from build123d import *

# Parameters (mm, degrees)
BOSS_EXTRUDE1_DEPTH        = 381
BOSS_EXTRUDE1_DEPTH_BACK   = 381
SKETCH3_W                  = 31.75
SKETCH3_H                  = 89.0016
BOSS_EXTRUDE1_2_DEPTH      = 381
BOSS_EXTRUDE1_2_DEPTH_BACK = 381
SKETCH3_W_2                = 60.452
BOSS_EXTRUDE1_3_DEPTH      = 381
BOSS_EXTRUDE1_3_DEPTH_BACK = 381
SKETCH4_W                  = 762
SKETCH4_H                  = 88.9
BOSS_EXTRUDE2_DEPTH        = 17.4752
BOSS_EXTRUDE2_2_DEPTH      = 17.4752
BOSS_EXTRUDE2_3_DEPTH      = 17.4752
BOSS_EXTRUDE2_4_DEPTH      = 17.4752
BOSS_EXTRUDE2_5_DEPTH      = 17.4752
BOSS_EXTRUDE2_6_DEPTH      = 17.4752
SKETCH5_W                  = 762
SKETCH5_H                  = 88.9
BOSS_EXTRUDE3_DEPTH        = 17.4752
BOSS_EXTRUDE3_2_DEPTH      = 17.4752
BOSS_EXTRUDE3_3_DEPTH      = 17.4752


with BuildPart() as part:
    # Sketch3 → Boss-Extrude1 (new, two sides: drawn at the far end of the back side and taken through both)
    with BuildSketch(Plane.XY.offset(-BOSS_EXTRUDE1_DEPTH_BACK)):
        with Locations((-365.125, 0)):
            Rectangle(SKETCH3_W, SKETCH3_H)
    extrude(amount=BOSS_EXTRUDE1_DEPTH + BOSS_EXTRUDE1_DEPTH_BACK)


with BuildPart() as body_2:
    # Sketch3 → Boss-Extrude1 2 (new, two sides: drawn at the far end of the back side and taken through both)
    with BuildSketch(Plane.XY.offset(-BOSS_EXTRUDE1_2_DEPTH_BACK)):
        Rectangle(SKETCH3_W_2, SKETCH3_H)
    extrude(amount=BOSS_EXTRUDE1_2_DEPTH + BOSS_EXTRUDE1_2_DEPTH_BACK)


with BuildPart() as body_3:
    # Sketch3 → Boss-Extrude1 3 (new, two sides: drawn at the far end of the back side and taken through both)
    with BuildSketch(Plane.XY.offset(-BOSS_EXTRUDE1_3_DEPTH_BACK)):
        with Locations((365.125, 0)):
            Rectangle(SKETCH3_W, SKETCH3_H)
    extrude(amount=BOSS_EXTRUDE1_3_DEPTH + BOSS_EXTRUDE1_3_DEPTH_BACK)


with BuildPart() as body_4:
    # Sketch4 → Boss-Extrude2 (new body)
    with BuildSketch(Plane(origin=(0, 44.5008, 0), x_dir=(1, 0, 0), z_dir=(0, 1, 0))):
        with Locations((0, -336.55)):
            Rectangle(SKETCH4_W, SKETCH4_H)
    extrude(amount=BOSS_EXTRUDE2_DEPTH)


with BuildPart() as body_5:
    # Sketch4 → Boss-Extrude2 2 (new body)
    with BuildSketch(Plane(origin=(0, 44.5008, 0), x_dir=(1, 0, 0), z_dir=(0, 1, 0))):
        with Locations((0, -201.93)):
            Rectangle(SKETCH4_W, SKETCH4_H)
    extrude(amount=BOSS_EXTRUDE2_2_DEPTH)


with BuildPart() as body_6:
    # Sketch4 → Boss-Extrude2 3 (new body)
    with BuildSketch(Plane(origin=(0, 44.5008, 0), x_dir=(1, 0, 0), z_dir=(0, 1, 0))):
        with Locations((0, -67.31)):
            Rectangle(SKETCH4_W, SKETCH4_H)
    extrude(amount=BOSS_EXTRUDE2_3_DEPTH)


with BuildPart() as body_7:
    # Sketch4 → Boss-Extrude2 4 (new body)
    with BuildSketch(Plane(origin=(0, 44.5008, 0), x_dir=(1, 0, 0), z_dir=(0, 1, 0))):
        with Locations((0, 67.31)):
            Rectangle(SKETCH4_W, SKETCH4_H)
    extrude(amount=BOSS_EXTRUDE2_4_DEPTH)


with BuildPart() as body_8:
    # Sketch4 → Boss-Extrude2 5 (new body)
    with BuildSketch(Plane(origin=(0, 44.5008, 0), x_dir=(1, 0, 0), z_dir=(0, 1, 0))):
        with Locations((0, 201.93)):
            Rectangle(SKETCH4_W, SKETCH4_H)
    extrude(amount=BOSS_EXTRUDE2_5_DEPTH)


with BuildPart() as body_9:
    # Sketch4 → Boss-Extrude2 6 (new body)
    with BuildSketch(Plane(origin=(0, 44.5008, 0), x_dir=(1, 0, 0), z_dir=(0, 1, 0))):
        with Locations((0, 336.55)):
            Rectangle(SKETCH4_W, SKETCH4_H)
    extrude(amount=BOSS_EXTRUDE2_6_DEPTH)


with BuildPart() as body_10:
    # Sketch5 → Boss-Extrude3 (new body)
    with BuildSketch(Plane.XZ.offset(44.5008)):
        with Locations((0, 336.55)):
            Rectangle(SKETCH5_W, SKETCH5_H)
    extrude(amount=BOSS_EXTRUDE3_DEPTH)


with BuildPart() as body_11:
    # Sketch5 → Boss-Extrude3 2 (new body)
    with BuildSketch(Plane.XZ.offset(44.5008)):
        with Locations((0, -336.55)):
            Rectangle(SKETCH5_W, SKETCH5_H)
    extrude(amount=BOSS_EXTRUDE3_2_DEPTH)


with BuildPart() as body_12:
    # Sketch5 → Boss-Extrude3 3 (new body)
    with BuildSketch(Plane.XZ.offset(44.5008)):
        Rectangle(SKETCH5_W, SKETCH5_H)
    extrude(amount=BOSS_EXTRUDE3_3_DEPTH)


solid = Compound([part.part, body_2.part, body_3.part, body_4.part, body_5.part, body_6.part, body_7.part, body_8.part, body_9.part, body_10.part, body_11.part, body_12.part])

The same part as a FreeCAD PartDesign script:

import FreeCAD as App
import Part
import Sketcher
from FreeCAD import Vector
Q = App.Units.Quantity

doc = App.newDocument("Part")
params = doc.addObject("Spreadsheet::Sheet", "Params")
for row, (alias, value) in enumerate([
    ("sketch1_width", "1.25 in"),
    ("sketch1_height", "3.504 in"),
    ("pad1_length", "15 in"),
    ("pad1_length2", "15 in"),
    ("sketch2_width", "2.38 in"),
    ("sketch2_height", "3.504 in"),
    ("pad2_length", "15 in"),
    ("pad2_length2", "15 in"),
    ("sketch3_width", "1.25 in"),
    ("sketch3_height", "3.504 in"),
    ("pad3_length", "15 in"),
    ("pad3_length2", "15 in"),
    ("sketch4_width", "30 in"),
    ("sketch4_height", "3.5 in"),
    ("pad4_length", "0.688 in"),
    ("sketch5_width", "30 in"),
    ("sketch5_height", "3.5 in"),
    ("pad5_length", "0.688 in"),
    ("sketch6_width", "30 in"),
    ("sketch6_height", "3.5 in"),
    ("pad6_length", "0.688 in"),
    ("sketch7_width", "30 in"),
    ("sketch7_height", "3.5 in"),
    ("pad7_length", "0.688 in"),
    ("sketch8_width", "30 in"),
    ("sketch8_height", "3.5 in"),
    ("pad8_length", "0.688 in"),
    ("sketch9_width", "30 in"),
    ("sketch9_height", "3.5 in"),
    ("pad9_length", "0.688 in"),
    ("sketch10_width", "30 in"),
    ("sketch10_height", "3.5 in"),
    ("pad10_length", "0.688 in"),
    ("sketch11_width", "30 in"),
    ("sketch11_height", "3.5 in"),
    ("pad11_length", "0.688 in"),
    ("sketch12_width", "30 in"),
    ("sketch12_height", "3.5 in"),
    ("pad12_length", "0.688 in"),
], start=1):
    params.set(f"A{row}", alias)
    params.set(f"B{row}", "=" + value)
    params.setAlias(f"B{row}", alias)

body = doc.addObject("PartDesign::Body", "Body")

# Sketch on XY plane
sketch1 = body.newObject("Sketcher::SketchObject", "Sketch")
sketch1.AttachmentSupport = (doc.getObject("XY_Plane"), [""])
sketch1.MapMode = "FlatFace"
sketch1.addGeometry(Part.LineSegment(Vector(-381, 45, 0), Vector(-381, -45, 0)), False)
sketch1.addGeometry(Part.LineSegment(Vector(-381, -45, 0), Vector(-349, -45, 0)), False)
sketch1.addGeometry(Part.LineSegment(Vector(-349, -45, 0), Vector(-349, 45, 0)), False)
sketch1.addGeometry(Part.LineSegment(Vector(-349, 45, 0), Vector(-381, 45, 0)), False)
sketch1.addConstraint(Sketcher.Constraint("Coincident", 0, 2, 1, 1))
sketch1.addConstraint(Sketcher.Constraint("Coincident", 1, 2, 2, 1))
sketch1.addConstraint(Sketcher.Constraint("Coincident", 2, 2, 3, 1))
sketch1.addConstraint(Sketcher.Constraint("Coincident", 3, 2, 0, 1))
sketch1.addConstraint(Sketcher.Constraint("Vertical", 0))
sketch1.addConstraint(Sketcher.Constraint("Horizontal", 1))
sketch1.addConstraint(Sketcher.Constraint("Vertical", 2))
sketch1.addConstraint(Sketcher.Constraint("Horizontal", 3))
sketch1.addConstraint(Sketcher.Constraint("DistanceX", 0, 2, -1, 1, Q("15 in")))
sketch1.addConstraint(Sketcher.Constraint("DistanceX", 1, 1, 1, 2, Q("1.25 in")))
sketch1.addConstraint(Sketcher.Constraint("DistanceY", 0, 2, 0, 1, Q("3.504 in")))
sketch1.addConstraint(Sketcher.Constraint("DistanceY", 0, 2, -1, 1, Q("1.752 in")))
sketch1.setExpression("Constraints[9]", "Params.sketch1_width")
sketch1.setExpression("Constraints[10]", "Params.sketch1_height")
pad1 = body.newObject("PartDesign::Pad", "Pad")
pad1.Profile = sketch1
pad1.Type = "TwoLengths"
pad1.setExpression("Length", "Params.pad1_length")
pad1.setExpression("Length2", "Params.pad1_length2")
body2 = doc.addObject("PartDesign::Body", "Body001")

# Sketch on XY plane
sketch2 = body2.newObject("Sketcher::SketchObject", "Sketch001")
sketch2.AttachmentSupport = (doc.getObject("XY_Plane001"), [""])
sketch2.MapMode = "FlatFace"
sketch2.addGeometry(Part.LineSegment(Vector(-30, 45, 0), Vector(-30, -45, 0)), False)
sketch2.addGeometry(Part.LineSegment(Vector(-30, -45, 0), Vector(30, -45, 0)), False)
sketch2.addGeometry(Part.LineSegment(Vector(30, -45, 0), Vector(30, 45, 0)), False)
sketch2.addGeometry(Part.LineSegment(Vector(30, 45, 0), Vector(-30, 45, 0)), False)
sketch2.addConstraint(Sketcher.Constraint("Coincident", 0, 2, 1, 1))
sketch2.addConstraint(Sketcher.Constraint("Coincident", 1, 2, 2, 1))
sketch2.addConstraint(Sketcher.Constraint("Coincident", 2, 2, 3, 1))
sketch2.addConstraint(Sketcher.Constraint("Coincident", 3, 2, 0, 1))
sketch2.addConstraint(Sketcher.Constraint("Vertical", 0))
sketch2.addConstraint(Sketcher.Constraint("Horizontal", 1))
sketch2.addConstraint(Sketcher.Constraint("Vertical", 2))
sketch2.addConstraint(Sketcher.Constraint("Horizontal", 3))
sketch2.addConstraint(Sketcher.Constraint("Symmetric", 0, 2, 2, 2, -1, 1))
sketch2.addConstraint(Sketcher.Constraint("DistanceX", 1, 1, 1, 2, Q("2.38 in")))
sketch2.addConstraint(Sketcher.Constraint("DistanceY", 0, 2, 0, 1, Q("3.504 in")))
sketch2.setExpression("Constraints[9]", "Params.sketch2_width")
sketch2.setExpression("Constraints[10]", "Params.sketch2_height")
pad2 = body2.newObject("PartDesign::Pad", "Pad001")
pad2.Profile = sketch2
pad2.Type = "TwoLengths"
pad2.setExpression("Length", "Params.pad2_length")
pad2.setExpression("Length2", "Params.pad2_length2")
body3 = doc.addObject("PartDesign::Body", "Body002")

# Sketch on XY plane
sketch3 = body3.newObject("Sketcher::SketchObject", "Sketch002")
sketch3.AttachmentSupport = (doc.getObject("XY_Plane002"), [""])
sketch3.MapMode = "FlatFace"
sketch3.addGeometry(Part.LineSegment(Vector(349, 45, 0), Vector(349, -45, 0)), False)
sketch3.addGeometry(Part.LineSegment(Vector(349, -45, 0), Vector(381, -45, 0)), False)
sketch3.addGeometry(Part.LineSegment(Vector(381, -45, 0), Vector(381, 45, 0)), False)
sketch3.addGeometry(Part.LineSegment(Vector(381, 45, 0), Vector(349, 45, 0)), False)
sketch3.addConstraint(Sketcher.Constraint("Coincident", 0, 2, 1, 1))
sketch3.addConstraint(Sketcher.Constraint("Coincident", 1, 2, 2, 1))
sketch3.addConstraint(Sketcher.Constraint("Coincident", 2, 2, 3, 1))
sketch3.addConstraint(Sketcher.Constraint("Coincident", 3, 2, 0, 1))
sketch3.addConstraint(Sketcher.Constraint("Vertical", 0))
sketch3.addConstraint(Sketcher.Constraint("Horizontal", 1))
sketch3.addConstraint(Sketcher.Constraint("Vertical", 2))
sketch3.addConstraint(Sketcher.Constraint("Horizontal", 3))
sketch3.addConstraint(Sketcher.Constraint("DistanceX", -1, 1, 1, 2, Q("15 in")))
sketch3.addConstraint(Sketcher.Constraint("DistanceX", 1, 1, 1, 2, Q("1.25 in")))
sketch3.addConstraint(Sketcher.Constraint("DistanceY", 0, 2, 0, 1, Q("3.504 in")))
sketch3.addConstraint(Sketcher.Constraint("DistanceY", 0, 2, -1, 1, Q("1.752 in")))
sketch3.setExpression("Constraints[9]", "Params.sketch3_width")
sketch3.setExpression("Constraints[10]", "Params.sketch3_height")
pad3 = body3.newObject("PartDesign::Pad", "Pad002")
pad3.Profile = sketch3
pad3.Type = "TwoLengths"
pad3.setExpression("Length", "Params.pad3_length")
pad3.setExpression("Length2", "Params.pad3_length2")
body4 = doc.addObject("PartDesign::Body", "Body003")

# Sketch on XZ plane
sketch4 = body4.newObject("Sketcher::SketchObject", "Sketch003")
sketch4.AttachmentSupport = (doc.getObject("XZ_Plane003"), [""])
sketch4.MapMode = "FlatFace"
sketch4.AttachmentOffset = App.Placement(Vector(0, 0, -1.752 * 25.4), App.Rotation())
sketch4.addGeometry(Part.LineSegment(Vector(-381, 292, 0), Vector(-381, 381, 0)), False)
sketch4.addGeometry(Part.LineSegment(Vector(-381, 381, 0), Vector(381, 381, 0)), False)
sketch4.addGeometry(Part.LineSegment(Vector(381, 381, 0), Vector(381, 292, 0)), False)
sketch4.addGeometry(Part.LineSegment(Vector(381, 292, 0), Vector(-381, 292, 0)), False)
sketch4.addConstraint(Sketcher.Constraint("Coincident", 0, 2, 1, 1))
sketch4.addConstraint(Sketcher.Constraint("Coincident", 1, 2, 2, 1))
sketch4.addConstraint(Sketcher.Constraint("Coincident", 2, 2, 3, 1))
sketch4.addConstraint(Sketcher.Constraint("Coincident", 3, 2, 0, 1))
sketch4.addConstraint(Sketcher.Constraint("Vertical", 0))
sketch4.addConstraint(Sketcher.Constraint("Horizontal", 1))
sketch4.addConstraint(Sketcher.Constraint("Vertical", 2))
sketch4.addConstraint(Sketcher.Constraint("Horizontal", 3))
sketch4.addConstraint(Sketcher.Constraint("DistanceX", 1, 1, 1, 2, Q("30 in")))
sketch4.addConstraint(Sketcher.Constraint("DistanceY", 0, 1, 0, 2, Q("3.5 in")))
sketch4.addConstraint(Sketcher.Constraint("DistanceX", 0, 2, -1, 1, Q("15 in")))
sketch4.addConstraint(Sketcher.Constraint("DistanceY", -1, 1, 0, 2, Q("15 in")))
sketch4.setExpression("Constraints[8]", "Params.sketch4_width")
sketch4.setExpression("Constraints[9]", "Params.sketch4_height")
pad4 = body4.newObject("PartDesign::Pad", "Pad003")
pad4.Profile = sketch4
pad4.setExpression("Length", "Params.pad4_length")
pad4.Reversed = True
body5 = doc.addObject("PartDesign::Body", "Body004")

# Sketch on XZ plane
sketch5 = body5.newObject("Sketcher::SketchObject", "Sketch004")
sketch5.AttachmentSupport = (doc.getObject("XZ_Plane004"), [""])
sketch5.MapMode = "FlatFace"
sketch5.AttachmentOffset = App.Placement(Vector(0, 0, -1.752 * 25.4), App.Rotation())
sketch5.addGeometry(Part.LineSegment(Vector(-381, 157, 0), Vector(-381, 246, 0)), False)
sketch5.addGeometry(Part.LineSegment(Vector(-381, 246, 0), Vector(381, 246, 0)), False)
sketch5.addGeometry(Part.LineSegment(Vector(381, 246, 0), Vector(381, 157, 0)), False)
sketch5.addGeometry(Part.LineSegment(Vector(381, 157, 0), Vector(-381, 157, 0)), False)
sketch5.addConstraint(Sketcher.Constraint("Coincident", 0, 2, 1, 1))
sketch5.addConstraint(Sketcher.Constraint("Coincident", 1, 2, 2, 1))
sketch5.addConstraint(Sketcher.Constraint("Coincident", 2, 2, 3, 1))
sketch5.addConstraint(Sketcher.Constraint("Coincident", 3, 2, 0, 1))
sketch5.addConstraint(Sketcher.Constraint("Vertical", 0))
sketch5.addConstraint(Sketcher.Constraint("Horizontal", 1))
sketch5.addConstraint(Sketcher.Constraint("Vertical", 2))
sketch5.addConstraint(Sketcher.Constraint("Horizontal", 3))
sketch5.addConstraint(Sketcher.Constraint("DistanceX", 1, 1, 1, 2, Q("30 in")))
sketch5.addConstraint(Sketcher.Constraint("DistanceY", 0, 1, 0, 2, Q("3.5 in")))
sketch5.addConstraint(Sketcher.Constraint("DistanceX", 0, 2, -1, 1, Q("15 in")))
sketch5.addConstraint(Sketcher.Constraint("DistanceY", -1, 1, 0, 2, Q("9.7 in")))
sketch5.setExpression("Constraints[8]", "Params.sketch5_width")
sketch5.setExpression("Constraints[9]", "Params.sketch5_height")
pad5 = body5.newObject("PartDesign::Pad", "Pad004")
pad5.Profile = sketch5
pad5.setExpression("Length", "Params.pad5_length")
pad5.Reversed = True
body6 = doc.addObject("PartDesign::Body", "Body005")

# Sketch on XZ plane
sketch6 = body6.newObject("Sketcher::SketchObject", "Sketch005")
sketch6.AttachmentSupport = (doc.getObject("XZ_Plane005"), [""])
sketch6.MapMode = "FlatFace"
sketch6.AttachmentOffset = App.Placement(Vector(0, 0, -1.752 * 25.4), App.Rotation())
sketch6.addGeometry(Part.LineSegment(Vector(-381, 23, 0), Vector(-381, 112, 0)), False)
sketch6.addGeometry(Part.LineSegment(Vector(-381, 112, 0), Vector(381, 112, 0)), False)
sketch6.addGeometry(Part.LineSegment(Vector(381, 112, 0), Vector(381, 23, 0)), False)
sketch6.addGeometry(Part.LineSegment(Vector(381, 23, 0), Vector(-381, 23, 0)), False)
sketch6.addConstraint(Sketcher.Constraint("Coincident", 0, 2, 1, 1))
sketch6.addConstraint(Sketcher.Constraint("Coincident", 1, 2, 2, 1))
sketch6.addConstraint(Sketcher.Constraint("Coincident", 2, 2, 3, 1))
sketch6.addConstraint(Sketcher.Constraint("Coincident", 3, 2, 0, 1))
sketch6.addConstraint(Sketcher.Constraint("Vertical", 0))
sketch6.addConstraint(Sketcher.Constraint("Horizontal", 1))
sketch6.addConstraint(Sketcher.Constraint("Vertical", 2))
sketch6.addConstraint(Sketcher.Constraint("Horizontal", 3))
sketch6.addConstraint(Sketcher.Constraint("DistanceX", 1, 1, 1, 2, Q("30 in")))
sketch6.addConstraint(Sketcher.Constraint("DistanceY", 0, 1, 0, 2, Q("3.5 in")))
sketch6.addConstraint(Sketcher.Constraint("DistanceX", 0, 2, -1, 1, Q("15 in")))
sketch6.addConstraint(Sketcher.Constraint("DistanceY", -1, 1, 0, 2, Q("4.4 in")))
sketch6.setExpression("Constraints[8]", "Params.sketch6_width")
sketch6.setExpression("Constraints[9]", "Params.sketch6_height")
pad6 = body6.newObject("PartDesign::Pad", "Pad005")
pad6.Profile = sketch6
pad6.setExpression("Length", "Params.pad6_length")
pad6.Reversed = True
body7 = doc.addObject("PartDesign::Body", "Body006")

# Sketch on XZ plane
sketch7 = body7.newObject("Sketcher::SketchObject", "Sketch006")
sketch7.AttachmentSupport = (doc.getObject("XZ_Plane006"), [""])
sketch7.MapMode = "FlatFace"
sketch7.AttachmentOffset = App.Placement(Vector(0, 0, -1.752 * 25.4), App.Rotation())
sketch7.addGeometry(Part.LineSegment(Vector(-381, -112, 0), Vector(-381, -23, 0)), False)
sketch7.addGeometry(Part.LineSegment(Vector(-381, -23, 0), Vector(381, -23, 0)), False)
sketch7.addGeometry(Part.LineSegment(Vector(381, -23, 0), Vector(381, -112, 0)), False)
sketch7.addGeometry(Part.LineSegment(Vector(381, -112, 0), Vector(-381, -112, 0)), False)
sketch7.addConstraint(Sketcher.Constraint("Coincident", 0, 2, 1, 1))
sketch7.addConstraint(Sketcher.Constraint("Coincident", 1, 2, 2, 1))
sketch7.addConstraint(Sketcher.Constraint("Coincident", 2, 2, 3, 1))
sketch7.addConstraint(Sketcher.Constraint("Coincident", 3, 2, 0, 1))
sketch7.addConstraint(Sketcher.Constraint("Vertical", 0))
sketch7.addConstraint(Sketcher.Constraint("Horizontal", 1))
sketch7.addConstraint(Sketcher.Constraint("Vertical", 2))
sketch7.addConstraint(Sketcher.Constraint("Horizontal", 3))
sketch7.addConstraint(Sketcher.Constraint("DistanceX", 1, 1, 1, 2, Q("30 in")))
sketch7.addConstraint(Sketcher.Constraint("DistanceY", 0, 1, 0, 2, Q("3.5 in")))
sketch7.addConstraint(Sketcher.Constraint("DistanceX", 0, 2, -1, 1, Q("15 in")))
sketch7.addConstraint(Sketcher.Constraint("DistanceY", 0, 2, -1, 1, Q("0.9 in")))
sketch7.setExpression("Constraints[8]", "Params.sketch7_width")
sketch7.setExpression("Constraints[9]", "Params.sketch7_height")
pad7 = body7.newObject("PartDesign::Pad", "Pad006")
pad7.Profile = sketch7
pad7.setExpression("Length", "Params.pad7_length")
pad7.Reversed = True
body8 = doc.addObject("PartDesign::Body", "Body007")

# Sketch on XZ plane
sketch8 = body8.newObject("Sketcher::SketchObject", "Sketch007")
sketch8.AttachmentSupport = (doc.getObject("XZ_Plane007"), [""])
sketch8.MapMode = "FlatFace"
sketch8.AttachmentOffset = App.Placement(Vector(0, 0, -1.752 * 25.4), App.Rotation())
sketch8.addGeometry(Part.LineSegment(Vector(-381, -246, 0), Vector(-381, -157, 0)), False)
sketch8.addGeometry(Part.LineSegment(Vector(-381, -157, 0), Vector(381, -157, 0)), False)
sketch8.addGeometry(Part.LineSegment(Vector(381, -157, 0), Vector(381, -246, 0)), False)
sketch8.addGeometry(Part.LineSegment(Vector(381, -246, 0), Vector(-381, -246, 0)), False)
sketch8.addConstraint(Sketcher.Constraint("Coincident", 0, 2, 1, 1))
sketch8.addConstraint(Sketcher.Constraint("Coincident", 1, 2, 2, 1))
sketch8.addConstraint(Sketcher.Constraint("Coincident", 2, 2, 3, 1))
sketch8.addConstraint(Sketcher.Constraint("Coincident", 3, 2, 0, 1))
sketch8.addConstraint(Sketcher.Constraint("Vertical", 0))
sketch8.addConstraint(Sketcher.Constraint("Horizontal", 1))
sketch8.addConstraint(Sketcher.Constraint("Vertical", 2))
sketch8.addConstraint(Sketcher.Constraint("Horizontal", 3))
sketch8.addConstraint(Sketcher.Constraint("DistanceX", 1, 1, 1, 2, Q("30 in")))
sketch8.addConstraint(Sketcher.Constraint("DistanceY", 0, 1, 0, 2, Q("3.5 in")))
sketch8.addConstraint(Sketcher.Constraint("DistanceX", 0, 2, -1, 1, Q("15 in")))
sketch8.addConstraint(Sketcher.Constraint("DistanceY", 0, 2, -1, 1, Q("6.2 in")))
sketch8.setExpression("Constraints[8]", "Params.sketch8_width")
sketch8.setExpression("Constraints[9]", "Params.sketch8_height")
pad8 = body8.newObject("PartDesign::Pad", "Pad007")
pad8.Profile = sketch8
pad8.setExpression("Length", "Params.pad8_length")
pad8.Reversed = True
body9 = doc.addObject("PartDesign::Body", "Body008")

# Sketch on XZ plane
sketch9 = body9.newObject("Sketcher::SketchObject", "Sketch008")
sketch9.AttachmentSupport = (doc.getObject("XZ_Plane008"), [""])
sketch9.MapMode = "FlatFace"
sketch9.AttachmentOffset = App.Placement(Vector(0, 0, -1.752 * 25.4), App.Rotation())
sketch9.addGeometry(Part.LineSegment(Vector(-381, -381, 0), Vector(-381, -292, 0)), False)
sketch9.addGeometry(Part.LineSegment(Vector(-381, -292, 0), Vector(381, -292, 0)), False)
sketch9.addGeometry(Part.LineSegment(Vector(381, -292, 0), Vector(381, -381, 0)), False)
sketch9.addGeometry(Part.LineSegment(Vector(381, -381, 0), Vector(-381, -381, 0)), False)
sketch9.addConstraint(Sketcher.Constraint("Coincident", 0, 2, 1, 1))
sketch9.addConstraint(Sketcher.Constraint("Coincident", 1, 2, 2, 1))
sketch9.addConstraint(Sketcher.Constraint("Coincident", 2, 2, 3, 1))
sketch9.addConstraint(Sketcher.Constraint("Coincident", 3, 2, 0, 1))
sketch9.addConstraint(Sketcher.Constraint("Vertical", 0))
sketch9.addConstraint(Sketcher.Constraint("Horizontal", 1))
sketch9.addConstraint(Sketcher.Constraint("Vertical", 2))
sketch9.addConstraint(Sketcher.Constraint("Horizontal", 3))
sketch9.addConstraint(Sketcher.Constraint("DistanceX", 1, 1, 1, 2, Q("30 in")))
sketch9.addConstraint(Sketcher.Constraint("DistanceY", 0, 1, 0, 2, Q("3.5 in")))
sketch9.addConstraint(Sketcher.Constraint("DistanceX", 0, 2, -1, 1, Q("15 in")))
sketch9.addConstraint(Sketcher.Constraint("DistanceY", 2, 2, -1, 1, Q("15 in")))
sketch9.setExpression("Constraints[8]", "Params.sketch9_width")
sketch9.setExpression("Constraints[9]", "Params.sketch9_height")
pad9 = body9.newObject("PartDesign::Pad", "Pad008")
pad9.Profile = sketch9
pad9.setExpression("Length", "Params.pad9_length")
pad9.Reversed = True
body10 = doc.addObject("PartDesign::Body", "Body009")

# Sketch on XZ plane
sketch10 = body10.newObject("Sketcher::SketchObject", "Sketch009")
sketch10.AttachmentSupport = (doc.getObject("XZ_Plane009"), [""])
sketch10.MapMode = "FlatFace"
sketch10.AttachmentOffset = App.Placement(Vector(0, 0, 1.752 * 25.4), App.Rotation())
sketch10.addGeometry(Part.LineSegment(Vector(-381, 381, 0), Vector(-381, 292, 0)), False)
sketch10.addGeometry(Part.LineSegment(Vector(-381, 292, 0), Vector(381, 292, 0)), False)
sketch10.addGeometry(Part.LineSegment(Vector(381, 292, 0), Vector(381, 381, 0)), False)
sketch10.addGeometry(Part.LineSegment(Vector(381, 381, 0), Vector(-381, 381, 0)), False)
sketch10.addConstraint(Sketcher.Constraint("Coincident", 0, 2, 1, 1))
sketch10.addConstraint(Sketcher.Constraint("Coincident", 1, 2, 2, 1))
sketch10.addConstraint(Sketcher.Constraint("Coincident", 2, 2, 3, 1))
sketch10.addConstraint(Sketcher.Constraint("Coincident", 3, 2, 0, 1))
sketch10.addConstraint(Sketcher.Constraint("Vertical", 0))
sketch10.addConstraint(Sketcher.Constraint("Horizontal", 1))
sketch10.addConstraint(Sketcher.Constraint("Vertical", 2))
sketch10.addConstraint(Sketcher.Constraint("Horizontal", 3))
sketch10.addConstraint(Sketcher.Constraint("DistanceX", 1, 1, 1, 2, Q("30 in")))
sketch10.addConstraint(Sketcher.Constraint("DistanceY", 0, 2, 0, 1, Q("3.5 in")))
sketch10.addConstraint(Sketcher.Constraint("DistanceX", 0, 2, -1, 1, Q("15 in")))
sketch10.addConstraint(Sketcher.Constraint("DistanceY", -1, 1, 2, 2, Q("15 in")))
sketch10.setExpression("Constraints[8]", "Params.sketch10_width")
sketch10.setExpression("Constraints[9]", "Params.sketch10_height")
pad10 = body10.newObject("PartDesign::Pad", "Pad009")
pad10.Profile = sketch10
pad10.setExpression("Length", "Params.pad10_length")
body11 = doc.addObject("PartDesign::Body", "Body010")

# Sketch on XZ plane
sketch11 = body11.newObject("Sketcher::SketchObject", "Sketch010")
sketch11.AttachmentSupport = (doc.getObject("XZ_Plane010"), [""])
sketch11.MapMode = "FlatFace"
sketch11.AttachmentOffset = App.Placement(Vector(0, 0, 1.752 * 25.4), App.Rotation())
sketch11.addGeometry(Part.LineSegment(Vector(-381, -292, 0), Vector(-381, -381, 0)), False)
sketch11.addGeometry(Part.LineSegment(Vector(-381, -381, 0), Vector(381, -381, 0)), False)
sketch11.addGeometry(Part.LineSegment(Vector(381, -381, 0), Vector(381, -292, 0)), False)
sketch11.addGeometry(Part.LineSegment(Vector(381, -292, 0), Vector(-381, -292, 0)), False)
sketch11.addConstraint(Sketcher.Constraint("Coincident", 0, 2, 1, 1))
sketch11.addConstraint(Sketcher.Constraint("Coincident", 1, 2, 2, 1))
sketch11.addConstraint(Sketcher.Constraint("Coincident", 2, 2, 3, 1))
sketch11.addConstraint(Sketcher.Constraint("Coincident", 3, 2, 0, 1))
sketch11.addConstraint(Sketcher.Constraint("Vertical", 0))
sketch11.addConstraint(Sketcher.Constraint("Horizontal", 1))
sketch11.addConstraint(Sketcher.Constraint("Vertical", 2))
sketch11.addConstraint(Sketcher.Constraint("Horizontal", 3))
sketch11.addConstraint(Sketcher.Constraint("DistanceX", 1, 1, 1, 2, Q("30 in")))
sketch11.addConstraint(Sketcher.Constraint("DistanceY", 0, 2, 0, 1, Q("3.5 in")))
sketch11.addConstraint(Sketcher.Constraint("DistanceX", 0, 2, -1, 1, Q("15 in")))
sketch11.addConstraint(Sketcher.Constraint("DistanceY", 0, 2, -1, 1, Q("15 in")))
sketch11.setExpression("Constraints[8]", "Params.sketch11_width")
sketch11.setExpression("Constraints[9]", "Params.sketch11_height")
pad11 = body11.newObject("PartDesign::Pad", "Pad010")
pad11.Profile = sketch11
pad11.setExpression("Length", "Params.pad11_length")
body12 = doc.addObject("PartDesign::Body", "Body011")

# Sketch on XZ plane
sketch12 = body12.newObject("Sketcher::SketchObject", "Sketch011")
sketch12.AttachmentSupport = (doc.getObject("XZ_Plane011"), [""])
sketch12.MapMode = "FlatFace"
sketch12.AttachmentOffset = App.Placement(Vector(0, 0, 1.752 * 25.4), App.Rotation())
sketch12.addGeometry(Part.LineSegment(Vector(-381, 44, 0), Vector(-381, -44, 0)), False)
sketch12.addGeometry(Part.LineSegment(Vector(-381, -44, 0), Vector(381, -44, 0)), False)
sketch12.addGeometry(Part.LineSegment(Vector(381, -44, 0), Vector(381, 44, 0)), False)
sketch12.addGeometry(Part.LineSegment(Vector(381, 44, 0), Vector(-381, 44, 0)), False)
sketch12.addConstraint(Sketcher.Constraint("Coincident", 0, 2, 1, 1))
sketch12.addConstraint(Sketcher.Constraint("Coincident", 1, 2, 2, 1))
sketch12.addConstraint(Sketcher.Constraint("Coincident", 2, 2, 3, 1))
sketch12.addConstraint(Sketcher.Constraint("Coincident", 3, 2, 0, 1))
sketch12.addConstraint(Sketcher.Constraint("Vertical", 0))
sketch12.addConstraint(Sketcher.Constraint("Horizontal", 1))
sketch12.addConstraint(Sketcher.Constraint("Vertical", 2))
sketch12.addConstraint(Sketcher.Constraint("Horizontal", 3))
sketch12.addConstraint(Sketcher.Constraint("Symmetric", 0, 2, 2, 2, -1, 1))
sketch12.addConstraint(Sketcher.Constraint("DistanceX", 1, 1, 1, 2, Q("30 in")))
sketch12.addConstraint(Sketcher.Constraint("DistanceY", 0, 2, 0, 1, Q("3.5 in")))
sketch12.setExpression("Constraints[9]", "Params.sketch12_width")
sketch12.setExpression("Constraints[10]", "Params.sketch12_height")
pad12 = body12.newObject("PartDesign::Pad", "Pad011")
pad12.Profile = sketch12
pad12.setExpression("Length", "Params.pad12_length")

doc.recompute()
